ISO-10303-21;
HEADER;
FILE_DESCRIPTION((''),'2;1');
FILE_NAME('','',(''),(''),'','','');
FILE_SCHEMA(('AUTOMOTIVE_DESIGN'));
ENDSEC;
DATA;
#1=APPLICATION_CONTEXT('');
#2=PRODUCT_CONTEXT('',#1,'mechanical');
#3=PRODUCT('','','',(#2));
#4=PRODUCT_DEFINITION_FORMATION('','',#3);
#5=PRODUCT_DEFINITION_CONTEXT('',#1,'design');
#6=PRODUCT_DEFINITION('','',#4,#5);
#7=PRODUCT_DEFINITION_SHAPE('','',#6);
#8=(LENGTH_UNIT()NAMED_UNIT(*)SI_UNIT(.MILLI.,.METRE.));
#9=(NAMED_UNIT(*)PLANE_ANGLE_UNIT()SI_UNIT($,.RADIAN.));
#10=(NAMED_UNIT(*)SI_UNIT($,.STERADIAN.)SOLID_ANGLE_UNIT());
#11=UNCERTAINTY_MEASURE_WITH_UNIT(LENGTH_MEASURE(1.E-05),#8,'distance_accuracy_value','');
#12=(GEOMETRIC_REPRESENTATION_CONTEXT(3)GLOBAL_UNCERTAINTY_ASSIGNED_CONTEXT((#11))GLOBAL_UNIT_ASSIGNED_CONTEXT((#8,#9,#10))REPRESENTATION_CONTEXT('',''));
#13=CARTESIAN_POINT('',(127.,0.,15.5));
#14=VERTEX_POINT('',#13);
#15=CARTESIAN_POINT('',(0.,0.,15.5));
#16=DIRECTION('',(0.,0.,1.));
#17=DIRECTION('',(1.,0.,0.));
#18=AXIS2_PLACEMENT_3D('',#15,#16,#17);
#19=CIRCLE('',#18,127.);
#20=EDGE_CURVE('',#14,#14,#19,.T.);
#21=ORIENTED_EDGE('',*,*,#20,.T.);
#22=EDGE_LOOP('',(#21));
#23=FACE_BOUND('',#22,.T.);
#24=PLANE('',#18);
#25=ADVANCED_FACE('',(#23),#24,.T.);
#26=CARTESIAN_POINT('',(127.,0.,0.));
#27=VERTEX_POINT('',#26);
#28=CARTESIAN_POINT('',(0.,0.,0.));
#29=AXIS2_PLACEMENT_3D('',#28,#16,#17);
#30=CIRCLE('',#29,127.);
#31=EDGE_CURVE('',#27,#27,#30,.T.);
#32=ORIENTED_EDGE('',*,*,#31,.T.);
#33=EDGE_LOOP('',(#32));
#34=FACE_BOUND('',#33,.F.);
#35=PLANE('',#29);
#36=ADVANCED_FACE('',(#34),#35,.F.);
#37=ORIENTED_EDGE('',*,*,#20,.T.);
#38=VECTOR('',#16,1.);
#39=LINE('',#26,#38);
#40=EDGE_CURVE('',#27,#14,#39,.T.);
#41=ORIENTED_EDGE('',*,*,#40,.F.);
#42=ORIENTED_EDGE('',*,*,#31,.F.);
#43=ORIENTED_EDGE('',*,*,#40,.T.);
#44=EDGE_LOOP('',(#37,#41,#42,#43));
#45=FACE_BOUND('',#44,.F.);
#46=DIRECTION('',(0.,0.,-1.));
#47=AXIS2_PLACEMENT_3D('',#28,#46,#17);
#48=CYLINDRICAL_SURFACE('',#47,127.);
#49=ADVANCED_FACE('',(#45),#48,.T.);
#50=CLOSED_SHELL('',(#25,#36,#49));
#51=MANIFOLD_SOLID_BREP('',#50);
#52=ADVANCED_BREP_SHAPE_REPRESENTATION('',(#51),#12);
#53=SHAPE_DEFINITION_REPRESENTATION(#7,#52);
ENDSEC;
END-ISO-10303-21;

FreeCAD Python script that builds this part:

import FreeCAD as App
import Part
import Sketcher
from FreeCAD import Vector

doc = App.newDocument("Part")
body = doc.addObject("PartDesign::Body", "Body")

# Sketch on XY plane
sketch1 = body.newObject("Sketcher::SketchObject", "Sketch")
sketch1.AttachmentSupport = (doc.getObject("XY_Plane"), [""])
sketch1.MapMode = "FlatFace"
sketch1.addGeometry(Part.Circle(Vector(0, 0, 0), Vector(0, 0, 1), 127), False)
sketch1.addConstraint(Sketcher.Constraint("Coincident", 0, 3, -1, 1))
sketch1.addConstraint(Sketcher.Constraint("Diameter", 0, 254.0))
pad1 = body.newObject("PartDesign::Pad", "Pad")
pad1.Profile = sketch1
pad1.Length = 15.5

doc.recompute()
